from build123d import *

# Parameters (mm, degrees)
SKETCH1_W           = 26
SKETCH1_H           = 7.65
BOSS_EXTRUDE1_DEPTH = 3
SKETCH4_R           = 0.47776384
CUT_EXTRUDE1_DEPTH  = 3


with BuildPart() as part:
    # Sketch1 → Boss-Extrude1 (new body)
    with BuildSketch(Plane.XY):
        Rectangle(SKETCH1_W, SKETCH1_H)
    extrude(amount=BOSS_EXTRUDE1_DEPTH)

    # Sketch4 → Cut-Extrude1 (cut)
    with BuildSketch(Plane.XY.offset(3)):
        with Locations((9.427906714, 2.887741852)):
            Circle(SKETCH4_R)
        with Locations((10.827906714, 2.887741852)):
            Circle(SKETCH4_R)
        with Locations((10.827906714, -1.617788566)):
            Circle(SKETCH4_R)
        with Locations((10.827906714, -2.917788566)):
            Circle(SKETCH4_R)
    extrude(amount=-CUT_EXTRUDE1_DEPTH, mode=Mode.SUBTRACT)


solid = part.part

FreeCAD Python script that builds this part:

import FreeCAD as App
import Part
import Sketcher
from FreeCAD import Vector


def add_polygon(sketch, points):
    """Adds a closed chain of lines whose ends are joined by coincident constraints."""
    first, n = sketch.GeometryCount, len(points)
    for a, b in zip(points, points[1:] + points[:1]):
        sketch.addGeometry(Part.LineSegment(App.Vector(*a, 0), App.Vector(*b, 0)), False)
    for i in range(n):
        sketch.addConstraint(Sketcher.Constraint("Coincident", first + i, 2, first + (i + 1) % n, 1))

doc = App.newDocument("Part")
body = doc.addObject("PartDesign::Body", "Body")

sketch1 = body.newObject("Sketcher::SketchObject", "Sketch")
sketch1.AttachmentSupport = (doc.getObject("XY_Plane"), [""])
sketch1.MapMode = "FlatFace"
add_polygon(sketch1, [(-13, 3.825), (-13, -3.825), (13, -3.825), (13, 3.825)])
sketch1.addConstraint([
    Sketcher.Constraint("Vertical", 0),
    Sketcher.Constraint("Horizontal", 1),
    Sketcher.Constraint("Vertical", 2),
    Sketcher.Constraint("Horizontal", 3),
    Sketcher.Constraint("Symmetric", 0, 2, 2, 2, -1, 1),
    Sketcher.Constraint("DistanceX", 1, 1, 1, 2, 26.0),
    Sketcher.Constraint("DistanceY", 0, 2, 0, 1, 7.65),
])
pad1 = body.newObject("PartDesign::Pad", "Pad")
pad1.Profile = sketch1
pad1.Length = 3

sketch2 = body.newObject("Sketcher::SketchObject", "Sketch001")
sketch2.AttachmentSupport = (doc.getObject("XY_Plane"), [""])
sketch2.MapMode = "FlatFace"
sketch2.AttachmentOffset = App.Placement(Vector(0, 0, 3), App.Rotation())
sketch2.addGeometry([
    Part.Circle(Vector(9.427907, 2.887742, 0), Vector(0, 0, 1), 0.477764),
    Part.Circle(Vector(10.827907, 2.887742, 0), Vector(0, 0, 1), 0.477764),
    Part.Circle(Vector(10.827907, -1.617789, 0), Vector(0, 0, 1), 0.477764),
    Part.Circle(Vector(10.827907, -2.917789, 0), Vector(0, 0, 1), 0.477764),
], False)
sketch2.addConstraint([
    Sketcher.Constraint("Equal", 0, 1),
    Sketcher.Constraint("Equal", 1, 2),
    Sketcher.Constraint("Equal", 2, 3),
    Sketcher.Constraint("Horizontal", 0, 3, 1, 3),
    Sketcher.Constraint("Vertical", 1, 3, 2, 3),
    Sketcher.Constraint("Vertical", 2, 3, 3, 3),
    Sketcher.Constraint("DistanceX", 0, 3, 1, 3, 1.4),
    Sketcher.Constraint("DistanceY", 3, 3, 2, 3, 1.3),
    Sketcher.Constraint("Diameter", 0, 0.955528),
    Sketcher.Constraint("DistanceY", -1, 1, 0, 3, 2.887742),
    Sketcher.Constraint("DistanceY", 2, 3, -1, 1, 1.617789),
    Sketcher.Constraint("DistanceX", -1, 1, 0, 3, 9.427907),
])
pocket1 = body.newObject("PartDesign::Pocket", "Pocket")
pocket1.Profile = sketch2
pocket1.Length = 3

doc.recompute()
